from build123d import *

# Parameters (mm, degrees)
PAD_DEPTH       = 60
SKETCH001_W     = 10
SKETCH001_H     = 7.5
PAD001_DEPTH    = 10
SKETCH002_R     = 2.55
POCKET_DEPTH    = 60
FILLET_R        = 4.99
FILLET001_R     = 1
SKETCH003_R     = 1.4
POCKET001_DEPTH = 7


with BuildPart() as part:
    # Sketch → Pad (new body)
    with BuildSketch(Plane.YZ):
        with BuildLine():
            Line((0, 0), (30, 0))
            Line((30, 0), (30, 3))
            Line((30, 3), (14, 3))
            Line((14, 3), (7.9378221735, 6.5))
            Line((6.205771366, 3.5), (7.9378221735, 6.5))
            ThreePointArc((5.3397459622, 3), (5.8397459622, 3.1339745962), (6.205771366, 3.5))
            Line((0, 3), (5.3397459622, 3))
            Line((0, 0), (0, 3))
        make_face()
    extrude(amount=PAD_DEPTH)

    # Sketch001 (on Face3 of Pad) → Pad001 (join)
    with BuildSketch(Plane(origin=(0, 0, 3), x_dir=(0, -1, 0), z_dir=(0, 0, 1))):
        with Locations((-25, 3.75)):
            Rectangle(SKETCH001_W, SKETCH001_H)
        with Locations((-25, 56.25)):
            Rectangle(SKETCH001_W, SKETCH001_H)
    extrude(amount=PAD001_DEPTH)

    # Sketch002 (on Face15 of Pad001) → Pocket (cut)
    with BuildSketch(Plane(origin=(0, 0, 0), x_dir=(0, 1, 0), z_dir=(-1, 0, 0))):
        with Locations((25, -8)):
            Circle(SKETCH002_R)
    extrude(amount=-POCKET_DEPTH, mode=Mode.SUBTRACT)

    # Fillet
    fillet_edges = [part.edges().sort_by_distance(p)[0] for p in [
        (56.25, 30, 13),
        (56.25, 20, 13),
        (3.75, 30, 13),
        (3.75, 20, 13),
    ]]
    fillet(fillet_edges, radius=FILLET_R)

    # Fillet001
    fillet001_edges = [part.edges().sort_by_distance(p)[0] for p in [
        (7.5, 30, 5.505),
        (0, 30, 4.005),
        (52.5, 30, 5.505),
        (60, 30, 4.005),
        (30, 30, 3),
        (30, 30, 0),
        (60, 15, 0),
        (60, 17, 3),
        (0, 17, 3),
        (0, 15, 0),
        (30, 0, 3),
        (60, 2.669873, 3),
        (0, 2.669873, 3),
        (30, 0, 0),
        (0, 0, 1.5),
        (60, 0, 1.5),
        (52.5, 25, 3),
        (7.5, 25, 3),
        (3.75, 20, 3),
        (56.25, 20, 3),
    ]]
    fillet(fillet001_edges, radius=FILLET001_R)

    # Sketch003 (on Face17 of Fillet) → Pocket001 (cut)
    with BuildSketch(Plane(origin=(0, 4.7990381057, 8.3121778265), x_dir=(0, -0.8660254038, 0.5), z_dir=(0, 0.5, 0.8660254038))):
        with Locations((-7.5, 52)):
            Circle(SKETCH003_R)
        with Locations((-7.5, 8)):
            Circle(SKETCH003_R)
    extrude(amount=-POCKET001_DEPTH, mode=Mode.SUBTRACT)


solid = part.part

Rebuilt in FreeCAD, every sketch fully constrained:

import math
import FreeCAD as App
import Part
import Sketcher
from FreeCAD import Vector
Q = App.Units.Quantity


def edges_at(feature, points):
    """Names of the edges that pass closest to the given points."""
    edges = feature.Shape.Edges
    near = lambda p: min(range(len(edges)), key=lambda i: edges[i].distToShape(Part.Vertex(*p))[0])
    return sorted({f"Edge{near(p) + 1}" for p in points})

doc = App.newDocument("Part")
body = doc.addObject("PartDesign::Body", "Body")

sketch1 = doc.addObject("Sketcher::SketchObject", "Sketch")
body.addObject(sketch1)
sketch1.AttachmentSupport = (doc.YZ_Plane, [""])
sketch1.MapMode = "FlatFace"
sketch1.addGeometry([
    Part.LineSegment(Vector(0, 0, 0), Vector(30, 0, 0)),
    Part.LineSegment(Vector(30, 0, 0), Vector(30, 3, 0)),
    Part.LineSegment(Vector(30, 3, 0), Vector(14, 3, 0)),
    Part.LineSegment(Vector(14, 3, 0), Vector(7.9, 6.5, 0)),
    Part.LineSegment(Vector(7.9, 6.5, 0), Vector(6.2, 3.5, 0)),
    Part.ArcOfCircle(Part.Circle(Vector(5.3, 4, 0), Vector(0, 0, 1), 1), math.radians(-90), math.radians(-30)),
    Part.LineSegment(Vector(5.3, 3, 0), Vector(0, 3, 0)),
    Part.LineSegment(Vector(0, 3, 0), Vector(0, 0, 0)),
], False)
sketch1.addConstraint([
    Sketcher.Constraint("Coincident", 0, 2, 1, 1),
    Sketcher.Constraint("Coincident", 1, 2, 2, 1),
    Sketcher.Constraint("Coincident", 2, 2, 3, 1),
    Sketcher.Constraint("Coincident", 3, 2, 4, 1),
    Sketcher.Constraint("Tangent", 4, 2, 5, 2),
    Sketcher.Constraint("Tangent", 5, 1, 6, 1),
    Sketcher.Constraint("Coincident", 6, 2, 7, 1),
    Sketcher.Constraint("Coincident", 7, 2, 0, 1),
    Sketcher.Constraint("Horizontal", 0),
    Sketcher.Constraint("Vertical", 1),
    Sketcher.Constraint("Horizontal", 2),
    Sketcher.Constraint("Horizontal", 6),
    Sketcher.Constraint("Vertical", 7),
    Sketcher.Constraint("Coincident", 7, 2, -1, 1),
    Sketcher.Constraint("Perpendicular", 3, 4),
    Sketcher.Constraint("Horizontal", 2, 2, 5, 1),
    Sketcher.Constraint("Radius", 5, 1.0),
    Sketcher.Constraint("DistanceX", 0, 1, 0, 2, 30.0),
    Sketcher.Constraint("DistanceX", 2, 2, 2, 1, 16.0),
    Sketcher.Constraint("DistanceY", 1, 1, 1, 2, 3.0),
    Sketcher.Constraint("Angle", 3, Q("150 deg")),
    Sketcher.Constraint("Distance", 3, 7.0),
])
pad1 = doc.addObject("PartDesign::Pad", "Pad")
body.addObject(pad1)
pad1.Profile = sketch1
pad1.Length = 60

sketch2 = doc.addObject("Sketcher::SketchObject", "Sketch001")
body.addObject(sketch2)
sketch2.AttachmentSupport = (doc.XY_Plane, [""])
sketch2.MapMode = "FlatFace"
sketch2.AttachmentOffset = App.Placement(Vector(0, 0, 3), App.Rotation())
sketch2.addGeometry([
    Part.LineSegment(Vector(8, 30, 0), Vector(0, 30, 0)),
    Part.LineSegment(Vector(0, 30, 0), Vector(0, 20, 0)),
    Part.LineSegment(Vector(0, 20, 0), Vector(8, 20, 0)),
    Part.LineSegment(Vector(8, 20, 0), Vector(8, 30, 0)),
    Part.LineSegment(Vector(60, 30, 0), Vector(52, 30, 0)),
    Part.LineSegment(Vector(52, 30, 0), Vector(52, 20, 0)),
    Part.LineSegment(Vector(52, 20, 0), Vector(60, 20, 0)),
    Part.LineSegment(Vector(60, 20, 0), Vector(60, 30, 0)),
], False)
sketch2.addConstraint([
    Sketcher.Constraint("Coincident", 0, 2, 1, 1),
    Sketcher.Constraint("Coincident", 1, 2, 2, 1),
    Sketcher.Constraint("Coincident", 2, 2, 3, 1),
    Sketcher.Constraint("Coincident", 3, 2, 0, 1),
    Sketcher.Constraint("Coincident", 4, 2, 5, 1),
    Sketcher.Constraint("Coincident", 5, 2, 6, 1),
    Sketcher.Constraint("Coincident", 6, 2, 7, 1),
    Sketcher.Constraint("Coincident", 7, 2, 4, 1),
    Sketcher.Constraint("Horizontal", 0),
    Sketcher.Constraint("Vertical", 1),
    Sketcher.Constraint("Horizontal", 2),
    Sketcher.Constraint("Vertical", 3),
    Sketcher.Constraint("Horizontal", 4),
    Sketcher.Constraint("Vertical", 5),
    Sketcher.Constraint("Horizontal", 6),
    Sketcher.Constraint("Vertical", 7),
    Sketcher.Constraint("PointOnObject", 0, 2, -2),
    Sketcher.Constraint("Horizontal", 3, 2, 4, 2),
    Sketcher.Constraint("Horizontal", 2, 2, 5, 2),
    Sketcher.Constraint("Equal", 2, 4),
    Sketcher.Constraint("DistanceY", 1, 2, 1, 1, 10.0),
    Sketcher.Constraint("DistanceX", 0, 2, 0, 1, 7.5),
    Sketcher.Constraint("DistanceY", -1, 1, 0, 2, 30.0),
    Sketcher.Constraint("DistanceX", -1, 1, 6, 2, 60.0),
])
pad2 = doc.addObject("PartDesign::Pad", "Pad001")
body.addObject(pad2)
pad2.Profile = sketch2
pad2.Length = 10

sketch3 = doc.addObject("Sketcher::SketchObject", "Sketch002")
body.addObject(sketch3)
sketch3.AttachmentSupport = (doc.YZ_Plane, [""])
sketch3.MapMode = "FlatFace"
sketch3.addGeometry(Part.Circle(Vector(25, 8, 0), Vector(0, 0, 1), 2.5), False)
sketch3.addConstraint([
    Sketcher.Constraint("Diameter", 0, 5.1),
    Sketcher.Constraint("DistanceX", -1, 1, 0, 3, 25.0),
    Sketcher.Constraint("DistanceY", -1, 1, 0, 3, 8.0),
])
pocket1 = doc.addObject("PartDesign::Pocket", "Pocket")
body.addObject(pocket1)
pocket1.Profile = sketch3
pocket1.Length = 60
pocket1.Reversed = True
doc.recompute()

fillet = doc.addObject("PartDesign::Fillet", "Fillet")
body.addObject(fillet)
fillet.Base = (pocket1, edges_at(pocket1, [
    (56.25, 30, 13),
    (56.25, 20, 13),
    (3.75, 30, 13),
    (3.75, 20, 13),
]))
fillet.Radius = 4.99
doc.recompute()

fillet2 = doc.addObject("PartDesign::Fillet", "Fillet001")
body.addObject(fillet2)
fillet2.Base = (fillet, edges_at(fillet, [
    (7.5, 30, 5.505),
    (0, 30, 4.005),
    (52.5, 30, 5.505),
    (60, 30, 4.005),
    (30, 30, 3),
    (30, 30, 0),
    (60, 15, 0),
    (60, 17, 3),
    (0, 17, 3),
    (0, 15, 0),
    (30, 0, 3),
    (60, 2.67, 3),
    (0, 2.67, 3),
    (30, 0, 0),
    (0, 0, 1.5),
    (60, 0, 1.5),
    (52.5, 25, 3),
    (7.5, 25, 3),
    (3.75, 20, 3),
    (56.25, 20, 3),
]))
fillet2.Radius = 1

sketch4 = doc.addObject("Sketcher::SketchObject", "Sketch003")
body.addObject(sketch4)
sketch4.Placement = App.Placement(Vector(0, 4.799038, 8.312178), App.Rotation(Vector(0, -0.866025404, 0.5), Vector(1, 0, 0), Vector(0, 0.5, 0.866025404), "ZXY"))
sketch4.addGeometry([
    Part.Circle(Vector(-7.5, 52, 0), Vector(0, 0, 1), 1.4),
    Part.Circle(Vector(-7.5, 8, 0), Vector(0, 0, 1), 1.4),
], False)
sketch4.addConstraint([
    Sketcher.Constraint("Equal", 0, 1),
    Sketcher.Constraint("Vertical", 0, 3, 1, 3),
    Sketcher.Constraint("Diameter", 0, 2.8),
    Sketcher.Constraint("DistanceY", -1, 1, 0, 3, 52.0),
    Sketcher.Constraint("DistanceY", -1, 1, 1, 3, 8.0),
    Sketcher.Constraint("DistanceX", 0, 3, -1, 1, 7.5),
])
pocket2 = doc.addObject("PartDesign::Pocket", "Pocket001")
body.addObject(pocket2)
pocket2.Profile = sketch4
pocket2.Length = 7

doc.recompute()
